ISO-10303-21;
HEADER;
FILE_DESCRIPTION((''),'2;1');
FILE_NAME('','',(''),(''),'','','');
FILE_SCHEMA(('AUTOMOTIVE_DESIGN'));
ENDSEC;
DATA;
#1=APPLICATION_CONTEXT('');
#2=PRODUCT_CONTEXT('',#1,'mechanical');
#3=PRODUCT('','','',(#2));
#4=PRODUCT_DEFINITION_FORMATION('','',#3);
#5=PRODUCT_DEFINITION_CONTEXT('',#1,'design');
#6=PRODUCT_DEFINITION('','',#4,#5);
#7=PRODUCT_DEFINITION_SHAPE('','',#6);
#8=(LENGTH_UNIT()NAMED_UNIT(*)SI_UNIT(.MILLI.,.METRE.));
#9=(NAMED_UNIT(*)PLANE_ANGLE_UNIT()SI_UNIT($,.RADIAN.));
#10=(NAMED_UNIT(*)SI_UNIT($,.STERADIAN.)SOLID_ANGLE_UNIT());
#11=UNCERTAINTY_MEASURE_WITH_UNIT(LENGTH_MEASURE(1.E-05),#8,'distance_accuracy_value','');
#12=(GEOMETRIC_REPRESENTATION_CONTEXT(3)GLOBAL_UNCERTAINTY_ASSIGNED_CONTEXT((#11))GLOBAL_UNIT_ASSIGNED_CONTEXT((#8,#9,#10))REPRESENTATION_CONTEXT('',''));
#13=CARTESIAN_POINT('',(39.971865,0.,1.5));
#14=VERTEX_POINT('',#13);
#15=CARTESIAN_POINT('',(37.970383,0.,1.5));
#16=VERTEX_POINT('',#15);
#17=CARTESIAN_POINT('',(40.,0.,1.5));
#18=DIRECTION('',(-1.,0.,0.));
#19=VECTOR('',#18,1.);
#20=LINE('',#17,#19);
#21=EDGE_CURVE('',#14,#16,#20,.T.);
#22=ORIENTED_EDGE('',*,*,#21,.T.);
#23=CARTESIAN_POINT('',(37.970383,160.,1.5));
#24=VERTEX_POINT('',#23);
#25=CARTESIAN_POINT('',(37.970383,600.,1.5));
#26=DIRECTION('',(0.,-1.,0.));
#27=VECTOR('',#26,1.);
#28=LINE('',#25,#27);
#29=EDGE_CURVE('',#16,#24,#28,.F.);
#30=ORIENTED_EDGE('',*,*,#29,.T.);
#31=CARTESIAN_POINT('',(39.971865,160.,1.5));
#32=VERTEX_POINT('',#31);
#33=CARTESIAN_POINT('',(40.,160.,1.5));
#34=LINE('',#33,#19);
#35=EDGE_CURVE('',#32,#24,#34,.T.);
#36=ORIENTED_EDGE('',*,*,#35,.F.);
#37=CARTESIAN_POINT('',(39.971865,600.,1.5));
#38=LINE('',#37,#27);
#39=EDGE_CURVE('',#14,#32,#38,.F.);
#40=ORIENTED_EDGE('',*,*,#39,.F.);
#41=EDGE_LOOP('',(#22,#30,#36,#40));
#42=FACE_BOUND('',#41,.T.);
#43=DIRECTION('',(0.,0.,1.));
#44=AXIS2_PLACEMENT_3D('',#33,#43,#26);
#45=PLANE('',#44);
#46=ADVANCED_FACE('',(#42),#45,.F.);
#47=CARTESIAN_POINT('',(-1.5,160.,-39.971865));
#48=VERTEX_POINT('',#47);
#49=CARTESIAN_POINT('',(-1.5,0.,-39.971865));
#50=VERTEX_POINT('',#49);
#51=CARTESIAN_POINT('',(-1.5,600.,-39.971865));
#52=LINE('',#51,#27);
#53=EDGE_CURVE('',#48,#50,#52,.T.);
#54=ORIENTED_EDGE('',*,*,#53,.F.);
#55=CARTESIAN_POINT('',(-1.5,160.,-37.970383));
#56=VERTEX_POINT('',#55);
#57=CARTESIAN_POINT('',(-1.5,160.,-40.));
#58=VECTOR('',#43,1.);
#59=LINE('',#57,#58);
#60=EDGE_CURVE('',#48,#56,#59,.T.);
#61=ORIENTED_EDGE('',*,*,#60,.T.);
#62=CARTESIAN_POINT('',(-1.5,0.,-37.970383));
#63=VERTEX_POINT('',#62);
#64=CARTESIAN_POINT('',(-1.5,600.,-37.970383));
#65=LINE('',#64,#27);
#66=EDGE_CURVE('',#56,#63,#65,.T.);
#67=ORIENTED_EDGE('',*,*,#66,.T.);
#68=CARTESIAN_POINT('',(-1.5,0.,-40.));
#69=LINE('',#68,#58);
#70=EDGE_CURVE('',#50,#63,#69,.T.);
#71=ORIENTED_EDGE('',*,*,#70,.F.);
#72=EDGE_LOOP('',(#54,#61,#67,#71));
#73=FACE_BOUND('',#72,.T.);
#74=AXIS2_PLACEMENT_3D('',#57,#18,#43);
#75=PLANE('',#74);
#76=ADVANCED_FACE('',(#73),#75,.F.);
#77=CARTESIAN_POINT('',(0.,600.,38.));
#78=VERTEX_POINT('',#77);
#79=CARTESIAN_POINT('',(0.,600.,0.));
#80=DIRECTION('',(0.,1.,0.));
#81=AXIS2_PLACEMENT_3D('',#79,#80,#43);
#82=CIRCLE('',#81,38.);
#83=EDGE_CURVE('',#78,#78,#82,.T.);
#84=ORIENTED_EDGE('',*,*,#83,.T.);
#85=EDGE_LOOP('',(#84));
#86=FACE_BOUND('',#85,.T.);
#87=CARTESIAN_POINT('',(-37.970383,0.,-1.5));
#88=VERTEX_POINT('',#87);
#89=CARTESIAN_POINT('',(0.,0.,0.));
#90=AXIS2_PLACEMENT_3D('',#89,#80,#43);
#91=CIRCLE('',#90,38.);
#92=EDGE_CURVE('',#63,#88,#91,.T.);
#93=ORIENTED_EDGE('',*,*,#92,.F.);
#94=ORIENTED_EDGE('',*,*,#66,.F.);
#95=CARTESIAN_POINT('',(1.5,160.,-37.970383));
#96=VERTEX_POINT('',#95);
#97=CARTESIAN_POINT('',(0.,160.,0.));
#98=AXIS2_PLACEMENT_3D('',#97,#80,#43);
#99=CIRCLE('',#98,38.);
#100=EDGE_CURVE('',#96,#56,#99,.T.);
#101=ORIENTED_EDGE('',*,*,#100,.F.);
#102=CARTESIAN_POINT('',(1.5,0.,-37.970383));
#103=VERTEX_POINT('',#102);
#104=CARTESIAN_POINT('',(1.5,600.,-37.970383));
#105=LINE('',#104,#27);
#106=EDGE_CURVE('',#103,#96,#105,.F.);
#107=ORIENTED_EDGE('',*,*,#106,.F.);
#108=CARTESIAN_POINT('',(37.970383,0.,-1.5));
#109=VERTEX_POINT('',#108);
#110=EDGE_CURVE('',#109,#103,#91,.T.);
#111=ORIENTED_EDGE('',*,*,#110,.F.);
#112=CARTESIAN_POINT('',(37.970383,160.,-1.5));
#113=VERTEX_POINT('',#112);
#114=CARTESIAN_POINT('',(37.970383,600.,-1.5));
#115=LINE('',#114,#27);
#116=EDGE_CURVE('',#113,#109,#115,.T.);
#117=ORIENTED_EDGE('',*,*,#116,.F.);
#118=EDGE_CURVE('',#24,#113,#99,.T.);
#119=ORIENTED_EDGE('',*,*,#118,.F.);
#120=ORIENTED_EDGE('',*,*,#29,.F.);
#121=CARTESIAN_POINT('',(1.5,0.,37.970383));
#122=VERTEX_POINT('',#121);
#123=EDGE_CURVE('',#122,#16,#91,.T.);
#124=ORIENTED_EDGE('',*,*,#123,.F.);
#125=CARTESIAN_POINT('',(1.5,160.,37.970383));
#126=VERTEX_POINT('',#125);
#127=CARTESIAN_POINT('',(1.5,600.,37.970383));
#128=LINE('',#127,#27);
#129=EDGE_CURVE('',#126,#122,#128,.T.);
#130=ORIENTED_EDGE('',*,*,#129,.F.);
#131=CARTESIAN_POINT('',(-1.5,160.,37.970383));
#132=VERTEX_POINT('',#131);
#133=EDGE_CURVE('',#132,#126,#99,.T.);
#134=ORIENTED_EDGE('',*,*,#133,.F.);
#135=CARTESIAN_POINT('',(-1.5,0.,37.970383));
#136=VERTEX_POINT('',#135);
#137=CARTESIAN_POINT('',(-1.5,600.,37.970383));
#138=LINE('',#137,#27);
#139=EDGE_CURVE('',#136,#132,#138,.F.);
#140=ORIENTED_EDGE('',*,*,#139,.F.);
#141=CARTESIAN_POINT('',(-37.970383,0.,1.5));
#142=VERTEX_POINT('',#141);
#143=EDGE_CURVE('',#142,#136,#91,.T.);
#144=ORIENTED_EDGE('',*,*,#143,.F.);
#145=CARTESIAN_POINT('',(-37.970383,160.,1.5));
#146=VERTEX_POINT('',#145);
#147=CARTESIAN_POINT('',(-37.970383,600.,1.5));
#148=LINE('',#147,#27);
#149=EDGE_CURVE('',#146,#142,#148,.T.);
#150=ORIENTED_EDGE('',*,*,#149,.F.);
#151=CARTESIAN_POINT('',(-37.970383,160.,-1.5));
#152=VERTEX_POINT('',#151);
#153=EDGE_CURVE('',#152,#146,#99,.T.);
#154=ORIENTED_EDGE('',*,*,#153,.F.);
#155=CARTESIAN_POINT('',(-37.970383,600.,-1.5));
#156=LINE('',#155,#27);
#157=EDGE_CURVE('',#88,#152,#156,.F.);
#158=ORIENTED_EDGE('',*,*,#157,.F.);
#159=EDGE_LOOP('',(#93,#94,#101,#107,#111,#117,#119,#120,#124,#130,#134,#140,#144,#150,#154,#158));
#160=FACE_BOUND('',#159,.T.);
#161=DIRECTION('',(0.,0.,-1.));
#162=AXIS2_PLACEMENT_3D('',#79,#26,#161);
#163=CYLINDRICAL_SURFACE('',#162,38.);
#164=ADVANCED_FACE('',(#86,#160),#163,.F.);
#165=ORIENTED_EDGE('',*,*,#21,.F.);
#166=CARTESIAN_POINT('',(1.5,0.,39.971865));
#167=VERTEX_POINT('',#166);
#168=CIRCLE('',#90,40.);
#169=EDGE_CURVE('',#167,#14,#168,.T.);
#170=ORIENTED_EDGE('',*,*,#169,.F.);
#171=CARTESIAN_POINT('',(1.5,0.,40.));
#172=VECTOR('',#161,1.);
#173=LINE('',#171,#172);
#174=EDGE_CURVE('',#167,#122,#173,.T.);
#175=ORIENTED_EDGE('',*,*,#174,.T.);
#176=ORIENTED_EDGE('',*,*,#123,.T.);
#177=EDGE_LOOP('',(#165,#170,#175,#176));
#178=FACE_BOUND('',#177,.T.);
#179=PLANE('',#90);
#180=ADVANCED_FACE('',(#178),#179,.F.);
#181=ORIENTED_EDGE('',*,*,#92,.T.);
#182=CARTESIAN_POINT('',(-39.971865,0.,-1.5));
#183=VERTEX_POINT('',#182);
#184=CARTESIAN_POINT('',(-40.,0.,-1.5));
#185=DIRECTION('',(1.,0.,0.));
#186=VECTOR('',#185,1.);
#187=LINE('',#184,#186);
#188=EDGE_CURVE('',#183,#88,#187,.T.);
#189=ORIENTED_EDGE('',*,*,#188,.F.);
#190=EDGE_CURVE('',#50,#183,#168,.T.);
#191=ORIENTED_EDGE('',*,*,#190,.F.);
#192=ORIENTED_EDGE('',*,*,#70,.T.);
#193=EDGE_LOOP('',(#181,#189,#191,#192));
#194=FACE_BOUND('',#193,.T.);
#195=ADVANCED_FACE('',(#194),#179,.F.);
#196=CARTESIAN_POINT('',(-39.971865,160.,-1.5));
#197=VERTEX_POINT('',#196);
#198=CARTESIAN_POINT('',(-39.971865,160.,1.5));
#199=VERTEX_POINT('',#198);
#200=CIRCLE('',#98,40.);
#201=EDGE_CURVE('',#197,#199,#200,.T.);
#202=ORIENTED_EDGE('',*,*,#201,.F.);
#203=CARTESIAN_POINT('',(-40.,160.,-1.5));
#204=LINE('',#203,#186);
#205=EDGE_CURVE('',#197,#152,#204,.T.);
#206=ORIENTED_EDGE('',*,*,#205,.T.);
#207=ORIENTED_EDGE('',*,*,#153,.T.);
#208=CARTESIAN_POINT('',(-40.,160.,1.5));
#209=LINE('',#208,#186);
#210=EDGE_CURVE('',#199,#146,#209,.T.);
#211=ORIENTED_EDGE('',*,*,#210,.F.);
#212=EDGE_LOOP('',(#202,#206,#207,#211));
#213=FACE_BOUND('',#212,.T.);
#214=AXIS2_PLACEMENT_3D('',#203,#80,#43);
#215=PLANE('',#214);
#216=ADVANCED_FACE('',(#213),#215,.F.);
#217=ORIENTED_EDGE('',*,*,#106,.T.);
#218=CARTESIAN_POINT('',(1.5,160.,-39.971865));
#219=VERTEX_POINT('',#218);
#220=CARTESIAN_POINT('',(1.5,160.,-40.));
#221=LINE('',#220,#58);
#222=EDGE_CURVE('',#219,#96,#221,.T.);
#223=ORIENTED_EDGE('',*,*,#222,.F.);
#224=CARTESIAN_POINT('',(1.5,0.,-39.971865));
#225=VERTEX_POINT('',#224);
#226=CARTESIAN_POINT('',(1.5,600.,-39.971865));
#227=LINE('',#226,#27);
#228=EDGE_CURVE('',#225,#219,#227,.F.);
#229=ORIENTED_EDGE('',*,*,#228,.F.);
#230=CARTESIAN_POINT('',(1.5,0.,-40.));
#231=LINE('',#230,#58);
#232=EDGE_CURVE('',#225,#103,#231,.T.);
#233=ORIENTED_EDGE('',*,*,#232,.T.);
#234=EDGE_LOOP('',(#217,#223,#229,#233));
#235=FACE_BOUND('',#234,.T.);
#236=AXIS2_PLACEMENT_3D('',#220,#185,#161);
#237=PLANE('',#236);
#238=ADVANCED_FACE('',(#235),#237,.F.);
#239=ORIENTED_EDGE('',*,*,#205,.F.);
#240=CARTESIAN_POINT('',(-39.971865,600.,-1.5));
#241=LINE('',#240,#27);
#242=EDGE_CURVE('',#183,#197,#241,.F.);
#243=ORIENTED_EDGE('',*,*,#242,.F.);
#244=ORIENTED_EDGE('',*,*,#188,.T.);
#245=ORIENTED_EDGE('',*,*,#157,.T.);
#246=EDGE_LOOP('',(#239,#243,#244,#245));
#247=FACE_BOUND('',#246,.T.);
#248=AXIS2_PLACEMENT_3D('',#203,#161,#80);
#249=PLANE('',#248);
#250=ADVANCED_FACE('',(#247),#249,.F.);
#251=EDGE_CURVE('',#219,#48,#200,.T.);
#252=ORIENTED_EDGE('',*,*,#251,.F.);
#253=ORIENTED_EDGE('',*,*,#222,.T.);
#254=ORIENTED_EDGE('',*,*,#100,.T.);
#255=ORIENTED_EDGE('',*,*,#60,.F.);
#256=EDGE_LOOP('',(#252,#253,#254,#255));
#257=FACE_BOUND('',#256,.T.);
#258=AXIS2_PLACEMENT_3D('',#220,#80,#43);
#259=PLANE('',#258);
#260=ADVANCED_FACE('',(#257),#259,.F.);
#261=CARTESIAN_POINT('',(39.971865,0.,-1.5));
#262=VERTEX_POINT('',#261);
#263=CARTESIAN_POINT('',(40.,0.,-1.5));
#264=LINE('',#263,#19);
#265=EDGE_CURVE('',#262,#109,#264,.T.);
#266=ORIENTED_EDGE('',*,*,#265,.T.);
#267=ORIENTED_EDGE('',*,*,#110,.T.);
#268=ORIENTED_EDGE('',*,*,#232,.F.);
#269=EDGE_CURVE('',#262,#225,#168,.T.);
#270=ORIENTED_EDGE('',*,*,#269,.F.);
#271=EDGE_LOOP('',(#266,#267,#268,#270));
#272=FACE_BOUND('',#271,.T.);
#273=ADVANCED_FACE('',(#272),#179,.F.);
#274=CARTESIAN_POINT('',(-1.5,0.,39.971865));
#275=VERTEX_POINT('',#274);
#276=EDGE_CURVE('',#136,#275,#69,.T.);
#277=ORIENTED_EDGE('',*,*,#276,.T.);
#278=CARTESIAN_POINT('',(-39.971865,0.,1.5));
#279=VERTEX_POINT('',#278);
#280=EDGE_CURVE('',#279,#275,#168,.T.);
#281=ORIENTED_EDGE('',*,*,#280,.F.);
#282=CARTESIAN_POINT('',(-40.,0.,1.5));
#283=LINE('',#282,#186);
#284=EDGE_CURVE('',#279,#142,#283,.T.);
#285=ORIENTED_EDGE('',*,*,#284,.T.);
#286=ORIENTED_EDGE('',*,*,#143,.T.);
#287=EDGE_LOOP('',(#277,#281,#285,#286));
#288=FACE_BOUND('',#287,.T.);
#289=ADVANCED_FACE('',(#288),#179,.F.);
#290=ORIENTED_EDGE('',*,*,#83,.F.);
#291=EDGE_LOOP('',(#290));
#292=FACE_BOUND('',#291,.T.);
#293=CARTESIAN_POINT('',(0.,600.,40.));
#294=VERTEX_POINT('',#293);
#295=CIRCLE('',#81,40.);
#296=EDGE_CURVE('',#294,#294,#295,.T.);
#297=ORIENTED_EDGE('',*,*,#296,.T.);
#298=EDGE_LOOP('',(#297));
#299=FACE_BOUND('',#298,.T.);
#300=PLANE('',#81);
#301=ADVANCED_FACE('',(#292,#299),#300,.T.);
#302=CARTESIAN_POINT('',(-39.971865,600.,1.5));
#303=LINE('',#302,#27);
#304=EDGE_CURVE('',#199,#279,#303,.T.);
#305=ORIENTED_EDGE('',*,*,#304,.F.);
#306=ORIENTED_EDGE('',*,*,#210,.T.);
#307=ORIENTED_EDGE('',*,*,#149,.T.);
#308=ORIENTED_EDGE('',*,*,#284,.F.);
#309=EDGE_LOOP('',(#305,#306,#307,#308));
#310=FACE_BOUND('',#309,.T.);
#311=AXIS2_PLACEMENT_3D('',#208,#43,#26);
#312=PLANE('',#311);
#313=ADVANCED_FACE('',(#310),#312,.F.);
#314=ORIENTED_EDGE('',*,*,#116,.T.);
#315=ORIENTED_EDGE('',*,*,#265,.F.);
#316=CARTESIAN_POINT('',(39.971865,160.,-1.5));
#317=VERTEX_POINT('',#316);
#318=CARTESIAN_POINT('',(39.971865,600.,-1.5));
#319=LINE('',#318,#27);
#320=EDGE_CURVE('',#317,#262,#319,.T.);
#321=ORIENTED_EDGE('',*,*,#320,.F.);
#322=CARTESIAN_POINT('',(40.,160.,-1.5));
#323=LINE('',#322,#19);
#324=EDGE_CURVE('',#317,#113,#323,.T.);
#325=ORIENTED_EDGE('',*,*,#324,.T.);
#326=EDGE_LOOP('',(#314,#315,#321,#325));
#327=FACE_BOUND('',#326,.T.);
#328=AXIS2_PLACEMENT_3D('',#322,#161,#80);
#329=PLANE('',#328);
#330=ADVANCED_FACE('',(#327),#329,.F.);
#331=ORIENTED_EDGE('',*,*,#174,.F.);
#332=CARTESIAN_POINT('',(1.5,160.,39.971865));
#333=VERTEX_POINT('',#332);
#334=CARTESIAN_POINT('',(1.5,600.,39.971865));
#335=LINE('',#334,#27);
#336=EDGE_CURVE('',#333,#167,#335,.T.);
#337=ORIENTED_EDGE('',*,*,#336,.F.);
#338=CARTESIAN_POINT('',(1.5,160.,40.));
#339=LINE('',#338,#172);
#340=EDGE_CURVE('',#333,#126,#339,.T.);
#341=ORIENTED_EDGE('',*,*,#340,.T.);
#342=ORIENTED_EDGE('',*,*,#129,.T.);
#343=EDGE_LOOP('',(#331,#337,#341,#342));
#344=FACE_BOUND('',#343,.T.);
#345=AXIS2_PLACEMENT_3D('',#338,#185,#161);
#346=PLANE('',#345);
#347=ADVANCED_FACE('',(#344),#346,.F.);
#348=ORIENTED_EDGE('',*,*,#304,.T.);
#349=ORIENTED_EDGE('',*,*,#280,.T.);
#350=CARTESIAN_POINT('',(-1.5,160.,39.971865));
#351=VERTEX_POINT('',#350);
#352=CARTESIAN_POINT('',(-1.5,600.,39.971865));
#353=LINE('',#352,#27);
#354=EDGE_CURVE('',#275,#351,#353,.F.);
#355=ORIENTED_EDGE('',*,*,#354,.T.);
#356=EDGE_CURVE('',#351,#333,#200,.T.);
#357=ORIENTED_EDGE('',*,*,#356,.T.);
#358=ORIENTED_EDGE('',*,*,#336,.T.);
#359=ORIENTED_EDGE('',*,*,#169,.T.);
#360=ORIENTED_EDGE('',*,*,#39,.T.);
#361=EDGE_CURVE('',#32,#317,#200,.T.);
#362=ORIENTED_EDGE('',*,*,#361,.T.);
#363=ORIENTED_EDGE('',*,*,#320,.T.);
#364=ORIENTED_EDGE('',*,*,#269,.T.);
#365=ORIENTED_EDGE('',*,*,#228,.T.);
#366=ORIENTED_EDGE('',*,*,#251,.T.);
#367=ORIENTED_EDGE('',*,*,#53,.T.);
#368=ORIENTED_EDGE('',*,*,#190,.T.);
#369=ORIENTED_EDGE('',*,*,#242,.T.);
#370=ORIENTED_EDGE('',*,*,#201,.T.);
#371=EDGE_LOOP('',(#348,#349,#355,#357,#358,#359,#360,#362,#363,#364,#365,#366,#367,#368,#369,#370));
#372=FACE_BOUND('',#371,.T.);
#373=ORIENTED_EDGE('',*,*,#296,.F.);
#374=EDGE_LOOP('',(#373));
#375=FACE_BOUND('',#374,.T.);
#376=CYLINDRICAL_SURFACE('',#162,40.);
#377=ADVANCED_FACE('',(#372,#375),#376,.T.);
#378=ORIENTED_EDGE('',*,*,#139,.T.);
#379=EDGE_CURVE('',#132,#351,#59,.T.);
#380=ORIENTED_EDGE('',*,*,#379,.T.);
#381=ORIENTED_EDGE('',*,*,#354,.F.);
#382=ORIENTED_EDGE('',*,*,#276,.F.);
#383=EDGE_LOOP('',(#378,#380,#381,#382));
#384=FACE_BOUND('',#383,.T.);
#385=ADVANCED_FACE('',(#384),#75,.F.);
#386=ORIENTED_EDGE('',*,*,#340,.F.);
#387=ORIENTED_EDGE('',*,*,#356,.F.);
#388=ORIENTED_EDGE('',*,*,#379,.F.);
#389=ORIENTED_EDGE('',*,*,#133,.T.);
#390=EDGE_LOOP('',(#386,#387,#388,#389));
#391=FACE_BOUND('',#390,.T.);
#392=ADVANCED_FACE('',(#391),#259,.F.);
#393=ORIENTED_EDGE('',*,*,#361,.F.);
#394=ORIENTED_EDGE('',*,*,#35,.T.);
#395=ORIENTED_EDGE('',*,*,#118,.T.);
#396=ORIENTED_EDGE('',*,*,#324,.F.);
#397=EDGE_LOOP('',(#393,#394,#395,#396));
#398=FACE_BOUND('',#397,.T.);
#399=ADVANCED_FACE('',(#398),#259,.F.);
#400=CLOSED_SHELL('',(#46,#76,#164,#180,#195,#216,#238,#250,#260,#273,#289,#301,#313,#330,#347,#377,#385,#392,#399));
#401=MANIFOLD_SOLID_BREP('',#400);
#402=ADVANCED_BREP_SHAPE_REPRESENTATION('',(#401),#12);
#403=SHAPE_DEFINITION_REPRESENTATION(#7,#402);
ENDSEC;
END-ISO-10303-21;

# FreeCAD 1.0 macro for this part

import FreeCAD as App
import Part
import Sketcher

V = App.Vector


def add_polygon(sketch, points):
    """Adds a closed chain of lines whose ends are joined by coincident constraints."""
    first, n = sketch.GeometryCount, len(points)
    for a, b in zip(points, points[1:] + points[:1]):
        sketch.addGeometry(Part.LineSegment(App.Vector(*a, 0), App.Vector(*b, 0)), False)
    for i in range(n):
        sketch.addConstraint(Sketcher.Constraint("Coincident", first + i, 2, first + (i + 1) % n, 1))

doc = App.newDocument("Part")
body = doc.addObject("PartDesign::Body", "Body")

# Sketch on XZ plane
sketch1 = body.newObject("Sketcher::SketchObject", "Sketch")
sketch1.AttachmentSupport = (doc.getObject("XZ_Plane"), [""])
sketch1.MapMode = "FlatFace"
sketch1.addGeometry(Part.Circle(V(0, 0, 0), V(0, 0, 1), 40), False)
sketch1.addGeometry(Part.Circle(V(0, 0, 0), V(0, 0, 1), 38), False)
sketch1.addConstraint(Sketcher.Constraint("Coincident", 0, 3, -1, 1))
sketch1.addConstraint(Sketcher.Constraint("Coincident", 1, 3, -1, 1))
sketch1.addConstraint(Sketcher.Constraint("Diameter", 0, 80.0))
sketch1.addConstraint(Sketcher.Constraint("Diameter", 1, 76.0))
pad1 = body.newObject("PartDesign::Pad", "Pad")
pad1.Profile = sketch1
pad1.Length = 600
pad1.Reversed = True

# Sketch on YZ plane
sketch2 = body.newObject("Sketcher::SketchObject", "Sketch001")
sketch2.AttachmentSupport = (doc.getObject("YZ_Plane"), [""])
sketch2.MapMode = "FlatFace"
add_polygon(sketch2, [(160, 1.5), (0, 1.5), (0, -1.5), (160, -1.5)])  # lines 0-3
sketch2.addConstraint(Sketcher.Constraint("Horizontal", 0))
sketch2.addConstraint(Sketcher.Constraint("Vertical", 1))
sketch2.addConstraint(Sketcher.Constraint("Horizontal", 2))
sketch2.addConstraint(Sketcher.Constraint("Vertical", 3))
sketch2.addConstraint(Sketcher.Constraint("Symmetric", 0, 2, 1, 2, -1, 1))
sketch2.addConstraint(Sketcher.Constraint("DistanceX", 0, 2, 0, 1, 160.0))
sketch2.addConstraint(Sketcher.Constraint("DistanceY", 1, 2, 1, 1, 3.0))
pocket1 = body.newObject("PartDesign::Pocket", "Pocket")
pocket1.Profile = sketch2
pocket1.Type = "ThroughAll"
doc.recompute()

polarpattern = body.newObject("PartDesign::PolarPattern", "PolarPattern")
polarpattern.Originals = [pocket1]
polarpattern.Axis = (doc.getObject("Y_Axis"), [""])
polarpattern.Angle = 360
polarpattern.Occurrences = 4
body.Tip = polarpattern

doc.recompute()
